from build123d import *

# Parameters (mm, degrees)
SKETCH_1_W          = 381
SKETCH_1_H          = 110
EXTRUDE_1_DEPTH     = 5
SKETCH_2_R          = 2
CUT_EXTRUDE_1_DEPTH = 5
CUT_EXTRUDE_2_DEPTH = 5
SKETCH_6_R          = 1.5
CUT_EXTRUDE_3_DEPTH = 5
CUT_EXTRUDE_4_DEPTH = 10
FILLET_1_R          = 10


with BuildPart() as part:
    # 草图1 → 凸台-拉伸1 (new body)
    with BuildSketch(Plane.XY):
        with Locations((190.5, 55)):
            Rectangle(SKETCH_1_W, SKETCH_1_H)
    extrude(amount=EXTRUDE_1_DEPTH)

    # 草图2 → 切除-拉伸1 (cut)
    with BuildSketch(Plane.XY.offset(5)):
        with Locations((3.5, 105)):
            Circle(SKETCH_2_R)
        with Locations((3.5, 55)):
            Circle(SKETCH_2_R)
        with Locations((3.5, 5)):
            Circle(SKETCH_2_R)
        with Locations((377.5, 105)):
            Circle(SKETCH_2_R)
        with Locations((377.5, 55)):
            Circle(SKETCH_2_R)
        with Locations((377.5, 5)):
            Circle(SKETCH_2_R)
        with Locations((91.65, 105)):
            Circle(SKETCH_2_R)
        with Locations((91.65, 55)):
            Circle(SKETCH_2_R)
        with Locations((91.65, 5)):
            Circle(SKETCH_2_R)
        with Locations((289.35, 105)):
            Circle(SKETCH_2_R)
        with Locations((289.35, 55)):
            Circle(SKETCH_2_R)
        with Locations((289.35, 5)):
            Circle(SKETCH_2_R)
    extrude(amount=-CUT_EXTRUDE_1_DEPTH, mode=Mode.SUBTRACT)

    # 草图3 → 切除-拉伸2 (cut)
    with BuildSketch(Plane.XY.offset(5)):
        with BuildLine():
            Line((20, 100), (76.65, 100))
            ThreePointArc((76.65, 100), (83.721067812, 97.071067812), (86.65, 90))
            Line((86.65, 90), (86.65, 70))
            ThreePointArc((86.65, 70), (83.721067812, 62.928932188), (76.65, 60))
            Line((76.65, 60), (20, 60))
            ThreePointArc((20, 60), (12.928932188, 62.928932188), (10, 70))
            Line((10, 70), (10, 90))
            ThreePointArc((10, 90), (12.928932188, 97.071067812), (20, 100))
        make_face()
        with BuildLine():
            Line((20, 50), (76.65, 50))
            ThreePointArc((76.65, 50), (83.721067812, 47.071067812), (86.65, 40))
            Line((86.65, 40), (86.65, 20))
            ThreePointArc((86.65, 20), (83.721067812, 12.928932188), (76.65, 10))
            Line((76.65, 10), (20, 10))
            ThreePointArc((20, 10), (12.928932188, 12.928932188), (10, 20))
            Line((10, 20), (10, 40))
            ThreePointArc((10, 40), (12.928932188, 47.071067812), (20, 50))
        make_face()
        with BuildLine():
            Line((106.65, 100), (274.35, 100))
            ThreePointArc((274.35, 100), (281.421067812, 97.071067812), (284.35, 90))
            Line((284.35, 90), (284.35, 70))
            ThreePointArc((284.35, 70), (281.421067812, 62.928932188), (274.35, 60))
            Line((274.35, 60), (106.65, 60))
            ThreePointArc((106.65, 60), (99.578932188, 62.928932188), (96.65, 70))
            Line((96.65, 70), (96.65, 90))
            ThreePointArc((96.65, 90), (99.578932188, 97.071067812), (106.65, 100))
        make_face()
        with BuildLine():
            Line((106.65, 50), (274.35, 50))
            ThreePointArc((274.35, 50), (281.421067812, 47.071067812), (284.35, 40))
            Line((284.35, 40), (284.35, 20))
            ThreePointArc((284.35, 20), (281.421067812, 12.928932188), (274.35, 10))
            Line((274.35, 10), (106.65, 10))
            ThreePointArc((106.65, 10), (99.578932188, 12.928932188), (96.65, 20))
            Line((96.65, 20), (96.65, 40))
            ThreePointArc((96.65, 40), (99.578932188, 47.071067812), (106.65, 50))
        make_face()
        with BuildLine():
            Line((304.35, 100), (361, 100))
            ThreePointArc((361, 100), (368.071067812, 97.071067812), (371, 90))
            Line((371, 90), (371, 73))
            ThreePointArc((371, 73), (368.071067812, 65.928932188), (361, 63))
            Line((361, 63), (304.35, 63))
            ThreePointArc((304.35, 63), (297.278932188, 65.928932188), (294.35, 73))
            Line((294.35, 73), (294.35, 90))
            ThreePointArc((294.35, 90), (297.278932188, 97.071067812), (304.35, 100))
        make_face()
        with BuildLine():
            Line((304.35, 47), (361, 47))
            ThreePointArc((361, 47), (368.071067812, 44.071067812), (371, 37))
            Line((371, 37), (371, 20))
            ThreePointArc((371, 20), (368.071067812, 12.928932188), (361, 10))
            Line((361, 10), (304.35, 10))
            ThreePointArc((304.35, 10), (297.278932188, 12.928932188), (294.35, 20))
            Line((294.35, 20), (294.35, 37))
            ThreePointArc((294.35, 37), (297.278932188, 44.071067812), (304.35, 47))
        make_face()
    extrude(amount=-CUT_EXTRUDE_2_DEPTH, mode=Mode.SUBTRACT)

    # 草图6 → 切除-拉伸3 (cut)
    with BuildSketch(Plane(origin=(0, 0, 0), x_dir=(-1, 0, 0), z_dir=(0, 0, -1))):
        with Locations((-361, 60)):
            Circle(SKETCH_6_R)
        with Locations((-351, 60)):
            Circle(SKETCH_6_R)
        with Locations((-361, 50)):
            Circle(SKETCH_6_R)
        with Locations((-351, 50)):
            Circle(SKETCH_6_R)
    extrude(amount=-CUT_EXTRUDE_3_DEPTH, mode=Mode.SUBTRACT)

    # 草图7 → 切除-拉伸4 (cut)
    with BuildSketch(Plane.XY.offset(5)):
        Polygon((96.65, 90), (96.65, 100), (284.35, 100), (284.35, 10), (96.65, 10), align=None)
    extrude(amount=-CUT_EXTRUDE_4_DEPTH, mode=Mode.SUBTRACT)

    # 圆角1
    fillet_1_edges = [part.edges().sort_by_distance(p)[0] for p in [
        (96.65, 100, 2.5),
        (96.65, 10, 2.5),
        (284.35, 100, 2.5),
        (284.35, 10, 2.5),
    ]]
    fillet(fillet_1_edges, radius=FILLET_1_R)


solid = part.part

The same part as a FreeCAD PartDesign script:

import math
import FreeCAD as App
import Part
import Sketcher
from FreeCAD import Vector
Q = App.Units.Quantity


def edges_at(feature, points):
    """Names of the edges that pass closest to the given points."""
    edges = feature.Shape.Edges
    near = lambda p: min(range(len(edges)), key=lambda i: edges[i].distToShape(Part.Vertex(*p))[0])
    return sorted({f"Edge{near(p) + 1}" for p in points})


def add_polygon(sketch, points):
    """Adds a closed chain of lines whose ends are joined by coincident constraints."""
    first, n = sketch.GeometryCount, len(points)
    for a, b in zip(points, points[1:] + points[:1]):
        sketch.addGeometry(Part.LineSegment(App.Vector(*a, 0), App.Vector(*b, 0)), False)
    for i in range(n):
        sketch.addConstraint(Sketcher.Constraint("Coincident", first + i, 2, first + (i + 1) % n, 1))

doc = App.newDocument("Part")
body = doc.addObject("PartDesign::Body", "Body")

sketch1 = body.newObject("Sketcher::SketchObject", "Sketch")
sketch1.AttachmentSupport = (doc.getObject("XY_Plane"), [""])
sketch1.MapMode = "FlatFace"
add_polygon(sketch1, [(0, 110), (0, 0), (381, 0), (381, 110)])
sketch1.addConstraint([
    Sketcher.Constraint("Vertical", 0),
    Sketcher.Constraint("Horizontal", 1),
    Sketcher.Constraint("Vertical", 2),
    Sketcher.Constraint("Horizontal", 3),
    Sketcher.Constraint("Coincident", 0, 2, -1, 1),
    Sketcher.Constraint("DistanceX", 1, 1, 1, 2, Q("381 mm")),
    Sketcher.Constraint("DistanceY", 0, 2, 0, 1, Q("110 mm")),
])
pad1 = body.newObject("PartDesign::Pad", "Pad")
pad1.Profile = sketch1
pad1.Length = 5

sketch2 = body.newObject("Sketcher::SketchObject", "Sketch001")
sketch2.AttachmentSupport = (doc.getObject("XY_Plane"), [""])
sketch2.MapMode = "FlatFace"
sketch2.AttachmentOffset = App.Placement(Vector(0, 0, 5), App.Rotation())
sketch2.addGeometry([
    Part.Circle(Vector(3.5, 105, 0), Vector(0, 0, 1), 2),
    Part.Circle(Vector(3.5, 55, 0), Vector(0, 0, 1), 2),
    Part.Circle(Vector(3.5, 5, 0), Vector(0, 0, 1), 2),
    Part.Circle(Vector(377.5, 105, 0), Vector(0, 0, 1), 2),
    Part.Circle(Vector(377.5, 55, 0), Vector(0, 0, 1), 2),
    Part.Circle(Vector(377.5, 5, 0), Vector(0, 0, 1), 2),
    Part.Circle(Vector(91.7, 105, 0), Vector(0, 0, 1), 2),
    Part.Circle(Vector(91.7, 55, 0), Vector(0, 0, 1), 2),
    Part.Circle(Vector(91.7, 5, 0), Vector(0, 0, 1), 2),
    Part.Circle(Vector(289.4, 105, 0), Vector(0, 0, 1), 2),
    Part.Circle(Vector(289.4, 55, 0), Vector(0, 0, 1), 2),
    Part.Circle(Vector(289.4, 5, 0), Vector(0, 0, 1), 2),
], False)
sketch2.addConstraint([
    Sketcher.Constraint("Equal", 0, 1),
    Sketcher.Constraint("Equal", 1, 2),
    Sketcher.Constraint("Equal", 2, 3),
    Sketcher.Constraint("Equal", 3, 4),
    Sketcher.Constraint("Equal", 4, 5),
    Sketcher.Constraint("Equal", 5, 6),
    Sketcher.Constraint("Equal", 6, 7),
    Sketcher.Constraint("Equal", 7, 8),
    Sketcher.Constraint("Equal", 8, 9),
    Sketcher.Constraint("Equal", 9, 10),
    Sketcher.Constraint("Equal", 10, 11),
    Sketcher.Constraint("Horizontal", 0, 3, 3, 3),
    Sketcher.Constraint("Horizontal", 1, 3, 4, 3),
    Sketcher.Constraint("Horizontal", 2, 3, 5, 3),
    Sketcher.Constraint("Horizontal", 3, 3, 6, 3),
    Sketcher.Constraint("Horizontal", 4, 3, 7, 3),
    Sketcher.Constraint("Horizontal", 5, 3, 8, 3),
    Sketcher.Constraint("Horizontal", 6, 3, 9, 3),
    Sketcher.Constraint("Horizontal", 7, 3, 10, 3),
    Sketcher.Constraint("Horizontal", 8, 3, 11, 3),
    Sketcher.Constraint("Vertical", 0, 3, 1, 3),
    Sketcher.Constraint("Vertical", 1, 3, 2, 3),
    Sketcher.Constraint("Vertical", 3, 3, 4, 3),
    Sketcher.Constraint("Vertical", 4, 3, 5, 3),
    Sketcher.Constraint("Vertical", 6, 3, 7, 3),
    Sketcher.Constraint("Vertical", 7, 3, 8, 3),
    Sketcher.Constraint("Vertical", 9, 3, 10, 3),
    Sketcher.Constraint("Vertical", 10, 3, 11, 3),
    Sketcher.Constraint("Diameter", 0, Q("4 mm")),
    Sketcher.Constraint("DistanceY", -1, 1, 0, 3, Q("105 mm")),
    Sketcher.Constraint("DistanceY", -1, 1, 1, 3, Q("55 mm")),
    Sketcher.Constraint("DistanceY", -1, 1, 2, 3, Q("5 mm")),
    Sketcher.Constraint("DistanceX", 0, 3, 3, 3, Q("374 mm")),
    Sketcher.Constraint("DistanceX", -1, 1, 0, 3, Q("3.5 mm")),
    Sketcher.Constraint("DistanceX", 6, 3, 9, 3, Q("197.7 mm")),
    Sketcher.Constraint("DistanceX", -1, 1, 6, 3, Q("91.65 mm")),
])
pocket1 = body.newObject("PartDesign::Pocket", "Pocket")
pocket1.Profile = sketch2
pocket1.Length = 5

sketch3 = body.newObject("Sketcher::SketchObject", "Sketch002")
sketch3.AttachmentSupport = (doc.getObject("XY_Plane"), [""])
sketch3.MapMode = "FlatFace"
sketch3.AttachmentOffset = App.Placement(Vector(0, 0, 5), App.Rotation())
sketch3.addGeometry([
    Part.LineSegment(Vector(77, 100, 0), Vector(20, 100, 0)),
    Part.ArcOfCircle(Part.Circle(Vector(20, 90, 0), Vector(0, 0, 1), 10), math.radians(90), math.radians(180)),
    Part.LineSegment(Vector(10, 90, 0), Vector(10, 70, 0)),
    Part.ArcOfCircle(Part.Circle(Vector(20, 70, 0), Vector(0, 0, 1), 10), math.radians(180), math.radians(270)),
    Part.LineSegment(Vector(20, 60, 0), Vector(77, 60, 0)),
    Part.ArcOfCircle(Part.Circle(Vector(77, 70, 0), Vector(0, 0, 1), 10), math.radians(-90), math.radians(0)),
    Part.LineSegment(Vector(87, 70, 0), Vector(87, 90, 0)),
    Part.ArcOfCircle(Part.Circle(Vector(77, 90, 0), Vector(0, 0, 1), 10), math.radians(0), math.radians(90)),
    Part.LineSegment(Vector(77, 50, 0), Vector(20, 50, 0)),
    Part.ArcOfCircle(Part.Circle(Vector(20, 40, 0), Vector(0, 0, 1), 10), math.radians(90), math.radians(180)),
    Part.LineSegment(Vector(10, 40, 0), Vector(10, 20, 0)),
    Part.ArcOfCircle(Part.Circle(Vector(20, 20, 0), Vector(0, 0, 1), 10), math.radians(180), math.radians(270)),
    Part.LineSegment(Vector(20, 10, 0), Vector(77, 10, 0)),
    Part.ArcOfCircle(Part.Circle(Vector(77, 20, 0), Vector(0, 0, 1), 10), math.radians(-90), math.radians(0)),
    Part.LineSegment(Vector(87, 20, 0), Vector(87, 40, 0)),
    Part.ArcOfCircle(Part.Circle(Vector(77, 40, 0), Vector(0, 0, 1), 10), math.radians(0), math.radians(90)),
    Part.LineSegment(Vector(274, 100, 0), Vector(107, 100, 0)),
    Part.ArcOfCircle(Part.Circle(Vector(107, 90, 0), Vector(0, 0, 1), 10), math.radians(90), math.radians(180)),
    Part.LineSegment(Vector(97, 90, 0), Vector(97, 70, 0)),
    Part.ArcOfCircle(Part.Circle(Vector(107, 70, 0), Vector(0, 0, 1), 10), math.radians(180), math.radians(270)),
    Part.LineSegment(Vector(107, 60, 0), Vector(274, 60, 0)),
    Part.ArcOfCircle(Part.Circle(Vector(274, 70, 0), Vector(0, 0, 1), 10), math.radians(-90), math.radians(0)),
    Part.LineSegment(Vector(284, 70, 0), Vector(284, 90, 0)),
    Part.ArcOfCircle(Part.Circle(Vector(274, 90, 0), Vector(0, 0, 1), 10), math.radians(0), math.radians(90)),
    Part.LineSegment(Vector(274, 50, 0), Vector(107, 50, 0)),
    Part.ArcOfCircle(Part.Circle(Vector(107, 40, 0), Vector(0, 0, 1), 10), math.radians(90), math.radians(180)),
    Part.LineSegment(Vector(97, 40, 0), Vector(97, 20, 0)),
    Part.ArcOfCircle(Part.Circle(Vector(107, 20, 0), Vector(0, 0, 1), 10), math.radians(180), math.radians(270)),
    Part.LineSegment(Vector(107, 10, 0), Vector(274, 10, 0)),
    Part.ArcOfCircle(Part.Circle(Vector(274, 20, 0), Vector(0, 0, 1), 10), math.radians(-90), math.radians(0)),
    Part.LineSegment(Vector(284, 20, 0), Vector(284, 40, 0)),
    Part.ArcOfCircle(Part.Circle(Vector(274, 40, 0), Vector(0, 0, 1), 10), math.radians(0), math.radians(90)),
    Part.LineSegment(Vector(361, 100, 0), Vector(304, 100, 0)),
    Part.ArcOfCircle(Part.Circle(Vector(304, 90, 0), Vector(0, 0, 1), 10), math.radians(90), math.radians(180)),
    Part.LineSegment(Vector(294, 90, 0), Vector(294, 73, 0)),
    Part.ArcOfCircle(Part.Circle(Vector(304, 73, 0), Vector(0, 0, 1), 10), math.radians(180), math.radians(270)),
    Part.LineSegment(Vector(304, 63, 0), Vector(361, 63, 0)),
    Part.ArcOfCircle(Part.Circle(Vector(361, 73, 0), Vector(0, 0, 1), 10), math.radians(-90), math.radians(0)),
    Part.LineSegment(Vector(371, 73, 0), Vector(371, 90, 0)),
    Part.ArcOfCircle(Part.Circle(Vector(361, 90, 0), Vector(0, 0, 1), 10), math.radians(0), math.radians(90)),
    Part.LineSegment(Vector(361, 47, 0), Vector(304, 47, 0)),
    Part.ArcOfCircle(Part.Circle(Vector(304, 37, 0), Vector(0, 0, 1), 10), math.radians(90), math.radians(180)),
    Part.LineSegment(Vector(294, 37, 0), Vector(294, 20, 0)),
    Part.ArcOfCircle(Part.Circle(Vector(304, 20, 0), Vector(0, 0, 1), 10), math.radians(180), math.radians(270)),
    Part.LineSegment(Vector(304, 10, 0), Vector(361, 10, 0)),
    Part.ArcOfCircle(Part.Circle(Vector(361, 20, 0), Vector(0, 0, 1), 10), math.radians(-90), math.radians(0)),
    Part.LineSegment(Vector(371, 20, 0), Vector(371, 37, 0)),
    Part.ArcOfCircle(Part.Circle(Vector(361, 37, 0), Vector(0, 0, 1), 10), math.radians(0), math.radians(90)),
], False)
sketch3.addConstraint([
    Sketcher.Constraint("Tangent", 0, 2, 1, 1),
    Sketcher.Constraint("Tangent", 1, 2, 2, 1),
    Sketcher.Constraint("Tangent", 2, 2, 3, 1),
    Sketcher.Constraint("Tangent", 3, 2, 4, 1),
    Sketcher.Constraint("Tangent", 4, 2, 5, 1),
    Sketcher.Constraint("Tangent", 5, 2, 6, 1),
    Sketcher.Constraint("Tangent", 6, 2, 7, 1),
    Sketcher.Constraint("Tangent", 7, 2, 0, 1),
    Sketcher.Constraint("Tangent", 8, 2, 9, 1),
    Sketcher.Constraint("Tangent", 9, 2, 10, 1),
    Sketcher.Constraint("Tangent", 10, 2, 11, 1),
    Sketcher.Constraint("Tangent", 11, 2, 12, 1),
    Sketcher.Constraint("Tangent", 12, 2, 13, 1),
    Sketcher.Constraint("Tangent", 13, 2, 14, 1),
    Sketcher.Constraint("Tangent", 14, 2, 15, 1),
    Sketcher.Constraint("Tangent", 15, 2, 8, 1),
    Sketcher.Constraint("Tangent", 16, 2, 17, 1),
    Sketcher.Constraint("Tangent", 17, 2, 18, 1),
    Sketcher.Constraint("Tangent", 18, 2, 19, 1),
    Sketcher.Constraint("Tangent", 19, 2, 20, 1),
    Sketcher.Constraint("Tangent", 20, 2, 21, 1),
    Sketcher.Constraint("Tangent", 21, 2, 22, 1),
    Sketcher.Constraint("Tangent", 22, 2, 23, 1),
    Sketcher.Constraint("Tangent", 23, 2, 16, 1),
    Sketcher.Constraint("Tangent", 24, 2, 25, 1),
    Sketcher.Constraint("Tangent", 25, 2, 26, 1),
    Sketcher.Constraint("Tangent", 26, 2, 27, 1),
    Sketcher.Constraint("Tangent", 27, 2, 28, 1),
    Sketcher.Constraint("Tangent", 28, 2, 29, 1),
    Sketcher.Constraint("Tangent", 29, 2, 30, 1),
    Sketcher.Constraint("Tangent", 30, 2, 31, 1),
    Sketcher.Constraint("Tangent", 31, 2, 24, 1),
    Sketcher.Constraint("Tangent", 32, 2, 33, 1),
    Sketcher.Constraint("Tangent", 33, 2, 34, 1),
    Sketcher.Constraint("Tangent", 34, 2, 35, 1),
    Sketcher.Constraint("Tangent", 35, 2, 36, 1),
    Sketcher.Constraint("Tangent", 36, 2, 37, 1),
    Sketcher.Constraint("Tangent", 37, 2, 38, 1),
    Sketcher.Constraint("Tangent", 38, 2, 39, 1),
    Sketcher.Constraint("Tangent", 39, 2, 32, 1),
    Sketcher.Constraint("Tangent", 40, 2, 41, 1),
    Sketcher.Constraint("Tangent", 41, 2, 42, 1),
    Sketcher.Constraint("Tangent", 42, 2, 43, 1),
    Sketcher.Constraint("Tangent", 43, 2, 44, 1),
    Sketcher.Constraint("Tangent", 44, 2, 45, 1),
    Sketcher.Constraint("Tangent", 45, 2, 46, 1),
    Sketcher.Constraint("Tangent", 46, 2, 47, 1),
    Sketcher.Constraint("Tangent", 47, 2, 40, 1),
    Sketcher.Constraint("Horizontal", 0),
    Sketcher.Constraint("Vertical", 2),
    Sketcher.Constraint("Horizontal", 4),
    Sketcher.Constraint("Vertical", 6),
    Sketcher.Constraint("Horizontal", 8),
    Sketcher.Constraint("Vertical", 10),
    Sketcher.Constraint("Horizontal", 12),
    Sketcher.Constraint("Vertical", 14),
    Sketcher.Constraint("Horizontal", 16),
    Sketcher.Constraint("Vertical", 18),
    Sketcher.Constraint("Horizontal", 20),
    Sketcher.Constraint("Vertical", 22),
    Sketcher.Constraint("Horizontal", 24),
    Sketcher.Constraint("Vertical", 26),
    Sketcher.Constraint("Horizontal", 28),
    Sketcher.Constraint("Vertical", 30),
    Sketcher.Constraint("Horizontal", 32),
    Sketcher.Constraint("Vertical", 34),
    Sketcher.Constraint("Horizontal", 36),
    Sketcher.Constraint("Vertical", 38),
    Sketcher.Constraint("Horizontal", 40),
    Sketcher.Constraint("Vertical", 42),
    Sketcher.Constraint("Horizontal", 44),
    Sketcher.Constraint("Vertical", 46),
    Sketcher.Constraint("Equal", 1, 3),
    Sketcher.Constraint("Equal", 3, 5),
    Sketcher.Constraint("Equal", 5, 7),
    Sketcher.Constraint("Equal", 7, 9),
    Sketcher.Constraint("Equal", 9, 11),
    Sketcher.Constraint("Equal", 11, 13),
    Sketcher.Constraint("Equal", 13, 15),
    Sketcher.Constraint("Equal", 15, 17),
    Sketcher.Constraint("Equal", 17, 19),
    Sketcher.Constraint("Equal", 19, 21),
    Sketcher.Constraint("Equal", 21, 23),
    Sketcher.Constraint("Equal", 23, 25),
    Sketcher.Constraint("Equal", 25, 27),
    Sketcher.Constraint("Equal", 27, 29),
    Sketcher.Constraint("Equal", 29, 31),
    Sketcher.Constraint("Equal", 31, 33),
    Sketcher.Constraint("Equal", 33, 35),
    Sketcher.Constraint("Equal", 35, 37),
    Sketcher.Constraint("Equal", 37, 39),
    Sketcher.Constraint("Equal", 39, 41),
    Sketcher.Constraint("Equal", 41, 43),
    Sketcher.Constraint("Equal", 43, 45),
    Sketcher.Constraint("Equal", 45, 47),
    Sketcher.Constraint("Horizontal", 7, 3, 17, 3),
    Sketcher.Constraint("Horizontal", 5, 3, 19, 3),
    Sketcher.Constraint("Horizontal", 15, 3, 25, 3),
    Sketcher.Constraint("Horizontal", 13, 3, 27, 3),
    Sketcher.Constraint("Horizontal", 23, 3, 33, 3),
    Sketcher.Constraint("Horizontal", 29, 3, 43, 3),
    Sketcher.Constraint("Vertical", 3, 3, 9, 3),
    Sketcher.Constraint("Vertical", 7, 3, 13, 3),
    Sketcher.Constraint("Vertical", 19, 3, 25, 3),
    Sketcher.Constraint("Vertical", 23, 3, 29, 3),
    Sketcher.Constraint("Vertical", 35, 3, 41, 3),
    Sketcher.Constraint("Vertical", 39, 3, 45, 3),
    Sketcher.Constraint("Equal", 12, 32),
    Sketcher.Constraint("Equal", 6, 10),
    Sketcher.Constraint("Equal", 38, 42),
    Sketcher.Constraint("Radius", 1, Q("10 mm")),
    Sketcher.Constraint("DistanceY", 2, 2, 2, 1, Q("20 mm")),
    Sketcher.Constraint("DistanceY", 34, 2, 34, 1, Q("17 mm")),
    Sketcher.Constraint("DistanceX", 16, 2, 16, 1, Q("167.7 mm")),
    Sketcher.Constraint("DistanceX", -1, 1, 1, 3, Q("20 mm")),
    Sketcher.Constraint("DistanceY", -1, 1, 1, 3, Q("90 mm")),
    Sketcher.Constraint("DistanceY", -1, 1, 9, 3, Q("40 mm")),
    Sketcher.Constraint("DistanceX", -1, 1, 37, 3, Q("361 mm")),
    Sketcher.Constraint("DistanceX", 0, 2, 0, 1, Q("56.65 mm")),
    Sketcher.Constraint("DistanceX", -1, 1, 17, 3, Q("106.65 mm")),
])
pocket2 = body.newObject("PartDesign::Pocket", "Pocket001")
pocket2.Profile = sketch3
pocket2.Length = 5

sketch4 = body.newObject("Sketcher::SketchObject", "Sketch003")
sketch4.AttachmentSupport = (doc.getObject("XY_Plane"), [""])
sketch4.MapMode = "FlatFace"
sketch4.addGeometry([
    Part.Circle(Vector(361, 60, 0), Vector(0, 0, 1), 1.5),
    Part.Circle(Vector(351, 60, 0), Vector(0, 0, 1), 1.5),
    Part.Circle(Vector(361, 50, 0), Vector(0, 0, 1), 1.5),
    Part.Circle(Vector(351, 50, 0), Vector(0, 0, 1), 1.5),
], False)
sketch4.addConstraint([
    Sketcher.Constraint("Equal", 0, 1),
    Sketcher.Constraint("Equal", 1, 2),
    Sketcher.Constraint("Equal", 2, 3),
    Sketcher.Constraint("Horizontal", 0, 3, 1, 3),
    Sketcher.Constraint("Horizontal", 2, 3, 3, 3),
    Sketcher.Constraint("Vertical", 0, 3, 2, 3),
    Sketcher.Constraint("Vertical", 1, 3, 3, 3),
    Sketcher.Constraint("Diameter", 0, Q("3 mm")),
    Sketcher.Constraint("DistanceX", -1, 1, 0, 3, Q("361 mm")),
    Sketcher.Constraint("DistanceY", -1, 1, 0, 3, Q("60 mm")),
    Sketcher.Constraint("DistanceX", -1, 1, 1, 3, Q("351 mm")),
    Sketcher.Constraint("DistanceY", -1, 1, 2, 3, Q("50 mm")),
])
pocket3 = body.newObject("PartDesign::Pocket", "Pocket002")
pocket3.Profile = sketch4
pocket3.Length = 5
pocket3.Reversed = True

sketch5 = body.newObject("Sketcher::SketchObject", "Sketch004")
sketch5.AttachmentSupport = (doc.getObject("XY_Plane"), [""])
sketch5.MapMode = "FlatFace"
sketch5.AttachmentOffset = App.Placement(Vector(0, 0, 5), App.Rotation())
add_polygon(sketch5, [(97, 100), (97, 10), (284, 10), (284, 100)])
sketch5.addConstraint([
    Sketcher.Constraint("Vertical", 0),
    Sketcher.Constraint("Horizontal", 1),
    Sketcher.Constraint("Vertical", 2),
    Sketcher.Constraint("Horizontal", 3),
    Sketcher.Constraint("DistanceY", 0, 2, 0, 1, Q("90 mm")),
    Sketcher.Constraint("DistanceX", 1, 1, 1, 2, Q("187.7 mm")),
    Sketcher.Constraint("DistanceY", -1, 1, 0, 2, Q("10 mm")),
    Sketcher.Constraint("DistanceX", -1, 1, 0, 2, Q("96.65 mm")),
])
pocket4 = body.newObject("PartDesign::Pocket", "Pocket003")
pocket4.Profile = sketch5
pocket4.Length = 10
doc.recompute()

fillet = body.newObject("PartDesign::Fillet", "Fillet")
fillet.Base = (pocket4, edges_at(pocket4, [
    (96.65, 100, 2.5),
    (96.65, 10, 2.5),
    (284.35, 100, 2.5),
    (284.35, 10, 2.5),
]))
fillet.Radius = 10

doc.recompute()
